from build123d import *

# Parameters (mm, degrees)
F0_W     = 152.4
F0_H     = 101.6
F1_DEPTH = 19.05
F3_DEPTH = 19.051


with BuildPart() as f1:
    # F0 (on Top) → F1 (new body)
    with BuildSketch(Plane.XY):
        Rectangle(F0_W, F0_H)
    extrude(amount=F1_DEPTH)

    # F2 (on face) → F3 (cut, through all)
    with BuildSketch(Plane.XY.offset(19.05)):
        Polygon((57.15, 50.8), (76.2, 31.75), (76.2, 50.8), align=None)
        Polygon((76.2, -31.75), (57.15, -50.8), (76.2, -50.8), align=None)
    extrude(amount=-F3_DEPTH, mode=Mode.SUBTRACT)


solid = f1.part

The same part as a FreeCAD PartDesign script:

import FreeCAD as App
import Part
import Sketcher
from FreeCAD import Vector
Q = App.Units.Quantity

doc = App.newDocument("Part")
body = doc.addObject("PartDesign::Body", "Body")

sketch1 = body.newObject("Sketcher::SketchObject", "Sketch")
sketch1.AttachmentSupport = (doc.getObject("XY_Plane"), [""])
sketch1.MapMode = "FlatFace"
sketch1.addGeometry(Part.LineSegment(Vector(-76, 51, 0), Vector(-76, -51, 0)), False)
sketch1.addGeometry(Part.LineSegment(Vector(-76, -51, 0), Vector(76, -51, 0)), False)
sketch1.addGeometry(Part.LineSegment(Vector(76, -51, 0), Vector(76, 51, 0)), False)
sketch1.addGeometry(Part.LineSegment(Vector(76, 51, 0), Vector(-76, 51, 0)), False)
sketch1.addConstraint(Sketcher.Constraint("Coincident", 0, 2, 1, 1))
sketch1.addConstraint(Sketcher.Constraint("Coincident", 1, 2, 2, 1))
sketch1.addConstraint(Sketcher.Constraint("Coincident", 2, 2, 3, 1))
sketch1.addConstraint(Sketcher.Constraint("Coincident", 3, 2, 0, 1))
sketch1.addConstraint(Sketcher.Constraint("Vertical", 0))
sketch1.addConstraint(Sketcher.Constraint("Horizontal", 1))
sketch1.addConstraint(Sketcher.Constraint("Vertical", 2))
sketch1.addConstraint(Sketcher.Constraint("Horizontal", 3))
sketch1.addConstraint(Sketcher.Constraint("Symmetric", 0, 2, 2, 2, -1, 1))
sketch1.addConstraint(Sketcher.Constraint("DistanceX", 1, 1, 1, 2, Q("6 in")))
sketch1.addConstraint(Sketcher.Constraint("DistanceY", 0, 2, 0, 1, Q("4 in")))
pad1 = body.newObject("PartDesign::Pad", "Pad")
pad1.Profile = sketch1
pad1.Length = Q("0.75 in")

sketch2 = body.newObject("Sketcher::SketchObject", "Sketch001")
sketch2.AttachmentSupport = (doc.getObject("XY_Plane"), [""])
sketch2.MapMode = "FlatFace"
sketch2.AttachmentOffset = App.Placement(Vector(0, 0, 0.75 * 25.4), App.Rotation())
sketch2.addGeometry(Part.LineSegment(Vector(57, 51, 0), Vector(76, 32, 0)), False)
sketch2.addGeometry(Part.LineSegment(Vector(76, 32, 0), Vector(76, 51, 0)), False)
sketch2.addGeometry(Part.LineSegment(Vector(76, 51, 0), Vector(57, 51, 0)), False)
sketch2.addGeometry(Part.LineSegment(Vector(76, -32, 0), Vector(57, -51, 0)), False)
sketch2.addGeometry(Part.LineSegment(Vector(57, -51, 0), Vector(76, -51, 0)), False)
sketch2.addGeometry(Part.LineSegment(Vector(76, -51, 0), Vector(76, -32, 0)), False)
sketch2.addConstraint(Sketcher.Constraint("Coincident", 0, 2, 1, 1))
sketch2.addConstraint(Sketcher.Constraint("Coincident", 1, 2, 2, 1))
sketch2.addConstraint(Sketcher.Constraint("Coincident", 2, 2, 0, 1))
sketch2.addConstraint(Sketcher.Constraint("Coincident", 3, 2, 4, 1))
sketch2.addConstraint(Sketcher.Constraint("Coincident", 4, 2, 5, 1))
sketch2.addConstraint(Sketcher.Constraint("Coincident", 5, 2, 3, 1))
sketch2.addConstraint(Sketcher.Constraint("Vertical", 1))
sketch2.addConstraint(Sketcher.Constraint("Horizontal", 2))
sketch2.addConstraint(Sketcher.Constraint("Horizontal", 4))
sketch2.addConstraint(Sketcher.Constraint("Vertical", 5))
sketch2.addConstraint(Sketcher.Constraint("Symmetric", 2, 2, 3, 2, -1))
sketch2.addConstraint(Sketcher.Constraint("Symmetric", 0, 2, 5, 2, -1))
sketch2.addConstraint(Sketcher.Constraint("Perpendicular", 0, 3))
sketch2.addConstraint(Sketcher.Constraint("DistanceX", -1, 1, 0, 2, Q("3 in")))
sketch2.addConstraint(Sketcher.Constraint("DistanceY", -1, 1, 1, 2, Q("2 in")))
sketch2.addConstraint(Sketcher.Constraint("DistanceX", 2, 2, 2, 1, Q("0.75 in")))
pocket1 = body.newObject("PartDesign::Pocket", "Pocket")
pocket1.Profile = sketch2
pocket1.Type = "ThroughAll"

doc.recompute()
